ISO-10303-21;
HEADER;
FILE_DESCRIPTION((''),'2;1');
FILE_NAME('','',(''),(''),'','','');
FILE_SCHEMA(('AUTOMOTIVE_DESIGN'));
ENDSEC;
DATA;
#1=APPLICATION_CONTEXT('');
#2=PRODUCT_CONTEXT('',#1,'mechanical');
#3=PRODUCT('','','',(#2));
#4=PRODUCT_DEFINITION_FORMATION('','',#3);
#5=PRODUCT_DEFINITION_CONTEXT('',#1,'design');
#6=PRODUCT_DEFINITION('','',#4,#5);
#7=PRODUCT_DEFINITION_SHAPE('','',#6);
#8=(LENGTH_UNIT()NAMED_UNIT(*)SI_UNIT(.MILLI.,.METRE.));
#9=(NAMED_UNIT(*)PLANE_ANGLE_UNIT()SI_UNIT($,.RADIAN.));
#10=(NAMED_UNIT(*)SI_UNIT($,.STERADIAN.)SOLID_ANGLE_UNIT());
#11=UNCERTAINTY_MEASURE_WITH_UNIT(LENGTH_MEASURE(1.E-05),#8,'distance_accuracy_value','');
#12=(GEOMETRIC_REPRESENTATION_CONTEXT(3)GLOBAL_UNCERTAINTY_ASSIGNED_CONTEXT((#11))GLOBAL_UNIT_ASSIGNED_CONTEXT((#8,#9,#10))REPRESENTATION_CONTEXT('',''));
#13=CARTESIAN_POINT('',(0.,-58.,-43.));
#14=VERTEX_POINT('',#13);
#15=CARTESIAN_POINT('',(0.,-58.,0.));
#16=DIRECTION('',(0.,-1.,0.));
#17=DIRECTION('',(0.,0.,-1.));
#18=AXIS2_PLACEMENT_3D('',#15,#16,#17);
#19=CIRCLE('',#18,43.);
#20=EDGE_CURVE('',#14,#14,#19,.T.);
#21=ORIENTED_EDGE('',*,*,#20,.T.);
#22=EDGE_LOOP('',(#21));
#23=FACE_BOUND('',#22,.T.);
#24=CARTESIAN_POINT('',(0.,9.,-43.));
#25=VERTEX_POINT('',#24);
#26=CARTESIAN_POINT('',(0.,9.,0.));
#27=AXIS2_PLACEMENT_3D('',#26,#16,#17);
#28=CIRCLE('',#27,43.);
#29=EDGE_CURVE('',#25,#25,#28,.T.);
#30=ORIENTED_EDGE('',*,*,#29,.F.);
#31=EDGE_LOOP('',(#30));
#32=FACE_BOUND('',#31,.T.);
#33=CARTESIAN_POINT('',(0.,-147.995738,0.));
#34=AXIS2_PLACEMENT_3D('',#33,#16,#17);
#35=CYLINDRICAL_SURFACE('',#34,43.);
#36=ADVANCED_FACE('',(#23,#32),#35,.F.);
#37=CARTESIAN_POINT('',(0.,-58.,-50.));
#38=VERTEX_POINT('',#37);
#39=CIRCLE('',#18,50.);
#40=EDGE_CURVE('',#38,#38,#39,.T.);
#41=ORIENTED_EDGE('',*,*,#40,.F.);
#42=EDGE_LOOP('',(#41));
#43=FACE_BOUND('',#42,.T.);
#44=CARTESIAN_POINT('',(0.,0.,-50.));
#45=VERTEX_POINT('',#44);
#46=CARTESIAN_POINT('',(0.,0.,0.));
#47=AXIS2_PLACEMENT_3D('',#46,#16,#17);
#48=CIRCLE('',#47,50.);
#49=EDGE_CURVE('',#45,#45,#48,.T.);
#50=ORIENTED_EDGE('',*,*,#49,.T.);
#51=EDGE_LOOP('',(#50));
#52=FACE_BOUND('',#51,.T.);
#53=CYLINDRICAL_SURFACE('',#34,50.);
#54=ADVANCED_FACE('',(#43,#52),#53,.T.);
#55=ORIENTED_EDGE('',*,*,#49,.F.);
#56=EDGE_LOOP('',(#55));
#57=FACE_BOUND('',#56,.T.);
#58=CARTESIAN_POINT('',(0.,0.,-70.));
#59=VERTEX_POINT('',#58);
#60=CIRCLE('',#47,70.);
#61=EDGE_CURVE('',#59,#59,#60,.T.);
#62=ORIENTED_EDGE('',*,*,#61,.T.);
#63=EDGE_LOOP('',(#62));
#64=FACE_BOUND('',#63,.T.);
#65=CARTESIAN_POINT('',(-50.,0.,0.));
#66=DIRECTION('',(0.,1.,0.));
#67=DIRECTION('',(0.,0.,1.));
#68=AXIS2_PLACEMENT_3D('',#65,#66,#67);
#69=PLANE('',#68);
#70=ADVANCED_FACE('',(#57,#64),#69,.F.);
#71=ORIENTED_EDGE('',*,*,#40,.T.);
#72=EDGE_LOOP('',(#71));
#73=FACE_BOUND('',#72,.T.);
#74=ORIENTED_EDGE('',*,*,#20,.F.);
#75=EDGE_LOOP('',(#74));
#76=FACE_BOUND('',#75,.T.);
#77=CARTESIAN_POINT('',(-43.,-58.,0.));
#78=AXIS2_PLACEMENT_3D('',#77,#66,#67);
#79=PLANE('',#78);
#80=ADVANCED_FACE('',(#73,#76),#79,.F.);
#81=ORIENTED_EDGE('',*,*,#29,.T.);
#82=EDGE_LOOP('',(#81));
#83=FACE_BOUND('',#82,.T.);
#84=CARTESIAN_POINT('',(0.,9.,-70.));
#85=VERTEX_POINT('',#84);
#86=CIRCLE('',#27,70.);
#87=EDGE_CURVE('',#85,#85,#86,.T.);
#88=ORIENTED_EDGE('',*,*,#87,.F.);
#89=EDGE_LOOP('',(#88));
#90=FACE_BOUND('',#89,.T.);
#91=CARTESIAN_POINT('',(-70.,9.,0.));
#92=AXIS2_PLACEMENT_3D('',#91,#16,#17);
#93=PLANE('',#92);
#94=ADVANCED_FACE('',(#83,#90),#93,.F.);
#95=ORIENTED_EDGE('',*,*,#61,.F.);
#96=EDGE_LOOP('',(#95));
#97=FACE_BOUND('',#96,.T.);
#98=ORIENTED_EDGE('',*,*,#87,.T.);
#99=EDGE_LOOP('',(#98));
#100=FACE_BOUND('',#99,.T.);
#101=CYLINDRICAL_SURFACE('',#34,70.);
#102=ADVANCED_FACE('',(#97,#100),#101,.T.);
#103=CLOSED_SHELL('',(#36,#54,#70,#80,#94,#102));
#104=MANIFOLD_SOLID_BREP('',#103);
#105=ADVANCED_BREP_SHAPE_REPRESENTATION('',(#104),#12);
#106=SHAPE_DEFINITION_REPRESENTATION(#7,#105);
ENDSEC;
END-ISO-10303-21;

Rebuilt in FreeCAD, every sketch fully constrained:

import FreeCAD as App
import Part
import Sketcher
from FreeCAD import Vector


def add_polygon(sketch, points):
    """Adds a closed chain of lines whose ends are joined by coincident constraints."""
    first, n = sketch.GeometryCount, len(points)
    for a, b in zip(points, points[1:] + points[:1]):
        sketch.addGeometry(Part.LineSegment(App.Vector(*a, 0), App.Vector(*b, 0)), False)
    for i in range(n):
        sketch.addConstraint(Sketcher.Constraint("Coincident", first + i, 2, first + (i + 1) % n, 1))

doc = App.newDocument("Part")
body = doc.addObject("PartDesign::Body", "Body")

# Sketch on XY plane
sketch1 = body.newObject("Sketcher::SketchObject", "Sketch")
sketch1.AttachmentSupport = (doc.getObject("XY_Plane"), [""])
sketch1.MapMode = "FlatFace"
add_polygon(sketch1, [(-50, 0), (-50, -58), (-43, -58), (-43, 9), (-70, 9), (-70, 0)])  # lines 0-5
sketch1.addConstraint([
    Sketcher.Constraint("Vertical", 0),
    Sketcher.Constraint("Horizontal", 1),
    Sketcher.Constraint("Vertical", 2),
    Sketcher.Constraint("Horizontal", 3),
    Sketcher.Constraint("Vertical", 4),
    Sketcher.Constraint("Horizontal", 5),
    Sketcher.Constraint("PointOnObject", 4, 2, -1),
    Sketcher.Constraint("DistanceX", 1, 1, 1, 2, 7.0),
    Sketcher.Constraint("DistanceX", 3, 2, 3, 1, 27.0),
    Sketcher.Constraint("DistanceY", 0, 2, 0, 1, 58.0),
    Sketcher.Constraint("DistanceY", 2, 1, 2, 2, 67.0),
    Sketcher.Constraint("DistanceX", 0, 2, -1, 1, 50.0),
])
revolution = body.newObject("PartDesign::Revolution", "Revolution")
revolution.Profile = sketch1
revolution.ReferenceAxis = (sketch1, ["V_Axis"])
revolution.Angle = 360

doc.recompute()
